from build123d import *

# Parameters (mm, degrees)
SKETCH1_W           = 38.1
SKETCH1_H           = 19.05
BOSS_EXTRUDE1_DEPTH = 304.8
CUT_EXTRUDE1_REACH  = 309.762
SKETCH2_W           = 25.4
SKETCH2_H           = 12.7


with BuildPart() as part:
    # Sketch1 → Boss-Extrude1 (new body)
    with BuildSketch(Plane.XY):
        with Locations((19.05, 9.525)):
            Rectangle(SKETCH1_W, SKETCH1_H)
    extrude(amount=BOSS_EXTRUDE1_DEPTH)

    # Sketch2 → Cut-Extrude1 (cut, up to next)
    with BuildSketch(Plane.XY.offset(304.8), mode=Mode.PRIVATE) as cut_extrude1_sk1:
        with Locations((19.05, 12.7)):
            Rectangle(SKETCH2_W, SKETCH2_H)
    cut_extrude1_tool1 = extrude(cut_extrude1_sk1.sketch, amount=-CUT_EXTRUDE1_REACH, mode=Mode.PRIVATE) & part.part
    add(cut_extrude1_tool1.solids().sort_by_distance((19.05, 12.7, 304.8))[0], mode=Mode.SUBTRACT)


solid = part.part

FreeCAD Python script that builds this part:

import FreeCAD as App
import Part
import Sketcher
from FreeCAD import Vector
Q = App.Units.Quantity


def add_polygon(sketch, points):
    """Adds a closed chain of lines whose ends are joined by coincident constraints."""
    first, n = sketch.GeometryCount, len(points)
    for a, b in zip(points, points[1:] + points[:1]):
        sketch.addGeometry(Part.LineSegment(App.Vector(*a, 0), App.Vector(*b, 0)), False)
    for i in range(n):
        sketch.addConstraint(Sketcher.Constraint("Coincident", first + i, 2, first + (i + 1) % n, 1))

doc = App.newDocument("Part")
params = doc.addObject("Spreadsheet::Sheet", "Params")
for row, (alias, value) in enumerate([
    ("sketch1_width", "1.5 in"),
    ("sketch1_height", "0.75 in"),
    ("pad1_length", "12 in"),
    ("sketch2_width", "1 in"),
    ("sketch2_height", "0.5 in"),
], start=1):
    params.set(f"A{row}", alias)
    params.set(f"B{row}", "=" + value)
    params.setAlias(f"B{row}", alias)

body = doc.addObject("PartDesign::Body", "Body")

# Sketch on XY plane
sketch1 = body.newObject("Sketcher::SketchObject", "Sketch")
sketch1.AttachmentSupport = (doc.getObject("XY_Plane"), [""])
sketch1.MapMode = "FlatFace"
add_polygon(sketch1, [(0, 19), (0, 0), (38, 0), (38, 19)])  # lines 0-3
sketch1.addConstraint([
    Sketcher.Constraint("Vertical", 0),
    Sketcher.Constraint("Horizontal", 1),
    Sketcher.Constraint("Vertical", 2),
    Sketcher.Constraint("Horizontal", 3),
    Sketcher.Constraint("Coincident", 0, 2, -1, 1),
    Sketcher.Constraint("DistanceX", 1, 1, 1, 2, Q("1.5 in")),
    Sketcher.Constraint("DistanceY", 0, 2, 0, 1, Q("0.75 in")),
])
sketch1.setExpression("Constraints[9]", "Params.sketch1_width")
sketch1.setExpression("Constraints[10]", "Params.sketch1_height")
pad1 = body.newObject("PartDesign::Pad", "Pad")
pad1.Profile = sketch1
pad1.setExpression("Length", "Params.pad1_length")

# Sketch on XY plane
sketch2 = body.newObject("Sketcher::SketchObject", "Sketch001")
sketch2.AttachmentSupport = (doc.getObject("XY_Plane"), [""])
sketch2.MapMode = "FlatFace"
sketch2.AttachmentOffset = App.Placement(Vector(0, 0, 12 * 25.4), App.Rotation())
add_polygon(sketch2, [(6, 19), (6, 6), (32, 6), (32, 19)])  # lines 0-3
sketch2.addConstraint([
    Sketcher.Constraint("Vertical", 0),
    Sketcher.Constraint("Horizontal", 1),
    Sketcher.Constraint("Vertical", 2),
    Sketcher.Constraint("Horizontal", 3),
    Sketcher.Constraint("DistanceX", 1, 1, 1, 2, Q("1 in")),
    Sketcher.Constraint("DistanceY", 0, 2, 0, 1, Q("0.5 in")),
    Sketcher.Constraint("DistanceX", -1, 1, 0, 2, Q("0.25 in")),
    Sketcher.Constraint("DistanceY", -1, 1, 0, 2, Q("0.25 in")),
])
sketch2.setExpression("Constraints[8]", "Params.sketch2_width")
sketch2.setExpression("Constraints[9]", "Params.sketch2_height")
pocket1 = body.newObject("PartDesign::Pocket", "Pocket")
pocket1.Profile = sketch2
pocket1.Type = "UpToFirst"

doc.recompute()
